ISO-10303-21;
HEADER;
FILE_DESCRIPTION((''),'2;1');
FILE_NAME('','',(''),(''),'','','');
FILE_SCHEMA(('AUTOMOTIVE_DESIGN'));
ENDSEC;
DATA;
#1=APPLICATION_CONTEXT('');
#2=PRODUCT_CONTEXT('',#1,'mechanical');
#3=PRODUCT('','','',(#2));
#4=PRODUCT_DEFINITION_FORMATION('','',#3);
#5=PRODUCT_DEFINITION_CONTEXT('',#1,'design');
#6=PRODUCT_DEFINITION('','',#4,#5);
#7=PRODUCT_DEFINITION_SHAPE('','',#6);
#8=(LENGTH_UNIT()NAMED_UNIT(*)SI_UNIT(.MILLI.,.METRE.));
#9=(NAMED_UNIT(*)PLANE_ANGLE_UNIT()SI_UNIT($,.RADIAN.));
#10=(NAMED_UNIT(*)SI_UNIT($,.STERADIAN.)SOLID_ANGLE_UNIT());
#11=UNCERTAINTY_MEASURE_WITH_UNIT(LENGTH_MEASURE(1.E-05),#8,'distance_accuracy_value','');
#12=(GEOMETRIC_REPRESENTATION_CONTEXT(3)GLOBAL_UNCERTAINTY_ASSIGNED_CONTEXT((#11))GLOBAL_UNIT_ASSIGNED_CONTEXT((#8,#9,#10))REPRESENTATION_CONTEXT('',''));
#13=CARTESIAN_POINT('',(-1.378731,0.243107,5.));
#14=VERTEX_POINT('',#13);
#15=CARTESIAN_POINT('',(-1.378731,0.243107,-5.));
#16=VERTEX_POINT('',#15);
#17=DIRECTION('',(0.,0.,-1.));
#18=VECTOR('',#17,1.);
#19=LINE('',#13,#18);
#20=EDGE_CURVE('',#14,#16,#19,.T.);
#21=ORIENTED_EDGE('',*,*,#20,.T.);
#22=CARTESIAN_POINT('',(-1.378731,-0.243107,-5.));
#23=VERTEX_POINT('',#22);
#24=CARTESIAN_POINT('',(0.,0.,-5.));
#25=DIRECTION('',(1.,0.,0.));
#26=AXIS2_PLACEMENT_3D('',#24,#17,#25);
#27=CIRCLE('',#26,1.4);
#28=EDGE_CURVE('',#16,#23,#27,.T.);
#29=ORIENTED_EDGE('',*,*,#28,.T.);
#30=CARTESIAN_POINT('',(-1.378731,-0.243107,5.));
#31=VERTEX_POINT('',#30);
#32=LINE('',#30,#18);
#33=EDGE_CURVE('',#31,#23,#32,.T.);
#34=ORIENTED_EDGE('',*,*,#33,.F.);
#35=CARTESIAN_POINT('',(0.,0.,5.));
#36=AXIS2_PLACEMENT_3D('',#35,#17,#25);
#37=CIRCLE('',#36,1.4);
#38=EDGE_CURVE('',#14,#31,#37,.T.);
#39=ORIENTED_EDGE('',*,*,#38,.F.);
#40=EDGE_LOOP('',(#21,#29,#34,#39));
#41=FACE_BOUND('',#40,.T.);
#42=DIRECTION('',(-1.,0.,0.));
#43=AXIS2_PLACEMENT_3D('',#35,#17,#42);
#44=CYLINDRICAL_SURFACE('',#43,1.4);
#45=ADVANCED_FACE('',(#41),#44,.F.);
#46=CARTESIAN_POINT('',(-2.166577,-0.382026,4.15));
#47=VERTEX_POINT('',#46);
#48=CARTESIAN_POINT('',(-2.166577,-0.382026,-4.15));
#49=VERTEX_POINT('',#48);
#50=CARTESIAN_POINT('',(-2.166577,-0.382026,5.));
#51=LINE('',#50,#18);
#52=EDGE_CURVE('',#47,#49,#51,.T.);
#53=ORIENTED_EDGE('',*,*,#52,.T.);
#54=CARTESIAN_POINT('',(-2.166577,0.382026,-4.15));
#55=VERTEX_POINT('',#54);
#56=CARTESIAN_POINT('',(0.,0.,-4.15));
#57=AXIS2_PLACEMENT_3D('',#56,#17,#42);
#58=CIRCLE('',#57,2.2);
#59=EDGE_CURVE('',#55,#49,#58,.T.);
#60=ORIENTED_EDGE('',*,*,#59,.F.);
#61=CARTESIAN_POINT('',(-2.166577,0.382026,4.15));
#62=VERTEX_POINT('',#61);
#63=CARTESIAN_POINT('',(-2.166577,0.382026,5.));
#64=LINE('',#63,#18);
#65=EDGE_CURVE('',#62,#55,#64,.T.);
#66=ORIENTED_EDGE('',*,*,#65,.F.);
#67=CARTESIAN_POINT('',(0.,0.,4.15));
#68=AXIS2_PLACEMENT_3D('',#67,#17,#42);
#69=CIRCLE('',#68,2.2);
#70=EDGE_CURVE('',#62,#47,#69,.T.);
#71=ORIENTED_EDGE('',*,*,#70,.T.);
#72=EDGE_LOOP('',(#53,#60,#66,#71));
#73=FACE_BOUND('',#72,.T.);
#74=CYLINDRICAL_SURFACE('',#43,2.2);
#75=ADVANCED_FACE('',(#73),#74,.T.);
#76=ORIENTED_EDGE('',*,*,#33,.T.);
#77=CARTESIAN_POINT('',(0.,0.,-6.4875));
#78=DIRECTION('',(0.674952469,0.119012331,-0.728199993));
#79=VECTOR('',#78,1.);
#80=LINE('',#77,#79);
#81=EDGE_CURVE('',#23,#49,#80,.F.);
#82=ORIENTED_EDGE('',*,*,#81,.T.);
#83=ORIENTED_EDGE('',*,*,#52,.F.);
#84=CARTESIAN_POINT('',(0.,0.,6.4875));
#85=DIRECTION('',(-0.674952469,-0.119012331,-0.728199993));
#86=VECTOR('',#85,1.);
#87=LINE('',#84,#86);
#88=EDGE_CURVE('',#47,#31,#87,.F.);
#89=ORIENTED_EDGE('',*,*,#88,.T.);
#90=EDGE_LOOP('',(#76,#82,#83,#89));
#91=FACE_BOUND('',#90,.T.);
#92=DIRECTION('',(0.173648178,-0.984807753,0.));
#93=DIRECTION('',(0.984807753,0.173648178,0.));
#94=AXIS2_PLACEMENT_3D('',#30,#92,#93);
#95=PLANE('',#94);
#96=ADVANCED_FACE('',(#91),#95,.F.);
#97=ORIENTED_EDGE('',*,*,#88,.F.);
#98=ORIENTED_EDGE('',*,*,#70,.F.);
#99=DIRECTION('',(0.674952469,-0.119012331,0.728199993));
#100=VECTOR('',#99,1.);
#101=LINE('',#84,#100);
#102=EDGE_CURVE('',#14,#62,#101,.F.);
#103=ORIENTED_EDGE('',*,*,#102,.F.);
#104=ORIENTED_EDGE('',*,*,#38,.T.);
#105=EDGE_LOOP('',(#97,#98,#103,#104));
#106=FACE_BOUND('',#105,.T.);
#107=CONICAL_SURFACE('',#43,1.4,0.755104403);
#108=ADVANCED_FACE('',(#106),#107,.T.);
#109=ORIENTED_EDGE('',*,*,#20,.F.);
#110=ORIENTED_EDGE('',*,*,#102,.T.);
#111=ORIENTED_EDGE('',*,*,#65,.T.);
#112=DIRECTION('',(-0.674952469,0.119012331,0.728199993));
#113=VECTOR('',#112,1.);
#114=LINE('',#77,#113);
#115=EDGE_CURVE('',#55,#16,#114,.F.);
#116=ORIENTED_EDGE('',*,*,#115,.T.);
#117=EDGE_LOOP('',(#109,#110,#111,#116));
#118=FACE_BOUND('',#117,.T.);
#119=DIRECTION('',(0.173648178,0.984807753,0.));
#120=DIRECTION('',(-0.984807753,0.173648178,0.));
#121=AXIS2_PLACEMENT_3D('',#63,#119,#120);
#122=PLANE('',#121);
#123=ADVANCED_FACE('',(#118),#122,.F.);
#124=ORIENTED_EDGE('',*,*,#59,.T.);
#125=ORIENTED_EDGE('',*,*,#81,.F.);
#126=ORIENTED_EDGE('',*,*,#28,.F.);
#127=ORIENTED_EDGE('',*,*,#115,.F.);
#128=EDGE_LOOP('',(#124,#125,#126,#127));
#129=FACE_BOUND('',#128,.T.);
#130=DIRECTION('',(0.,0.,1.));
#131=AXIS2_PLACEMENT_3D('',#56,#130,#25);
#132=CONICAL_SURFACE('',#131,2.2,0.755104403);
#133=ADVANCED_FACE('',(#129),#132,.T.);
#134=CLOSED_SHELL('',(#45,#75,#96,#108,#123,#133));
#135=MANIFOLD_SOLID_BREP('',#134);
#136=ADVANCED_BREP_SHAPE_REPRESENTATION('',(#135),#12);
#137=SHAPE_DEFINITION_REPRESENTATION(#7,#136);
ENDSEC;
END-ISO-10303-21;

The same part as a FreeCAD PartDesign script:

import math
import FreeCAD as App
import Part
import Sketcher
from FreeCAD import Vector
Q = App.Units.Quantity

doc = App.newDocument("Part")
body = doc.addObject("PartDesign::Body", "Body")

# Sketch on XY plane
sketch1 = body.newObject("Sketcher::SketchObject", "Sketch")
sketch1.AttachmentSupport = (doc.getObject("XY_Plane"), [""])
sketch1.MapMode = "FlatFace"
sketch1.addGeometry(Part.LineSegment(Vector(-2.17, 0.38, 0), Vector(-1.38, 0.24, 0)), False)
sketch1.addGeometry(Part.ArcOfCircle(Part.Circle(Vector(0, 0, 0), Vector(0, 0, 1), 1.4), math.radians(-170), math.radians(170)), False)
sketch1.addGeometry(Part.LineSegment(Vector(-1.38, -0.24, 0), Vector(-2.17, -0.38, 0)), False)
sketch1.addGeometry(Part.ArcOfCircle(Part.Circle(Vector(0, 0, 0), Vector(0, 0, 1), 2.2), math.radians(-170), math.radians(170)), False)
sketch1.addConstraint(Sketcher.Constraint("Coincident", 0, 2, 1, 2))
sketch1.addConstraint(Sketcher.Constraint("Coincident", 1, 1, 2, 1))
sketch1.addConstraint(Sketcher.Constraint("Coincident", 2, 2, 3, 1))
sketch1.addConstraint(Sketcher.Constraint("Coincident", 3, 2, 0, 1))
sketch1.addConstraint(Sketcher.Constraint("Coincident", 1, 3, -1, 1))
sketch1.addConstraint(Sketcher.Constraint("Coincident", 3, 3, -1, 1))
sketch1.addConstraint(Sketcher.Constraint("Vertical", 0, 2, 1, 1))
sketch1.addConstraint(Sketcher.Constraint("Vertical", 2, 2, 3, 2))
sketch1.addConstraint(Sketcher.Constraint("Radius", 1, Q("1.4 mm")))
sketch1.addConstraint(Sketcher.Constraint("Radius", 3, Q("2.2 mm")))
sketch1.addConstraint(Sketcher.Constraint("Angle", 0, Q("-10 deg")))
sketch1.addConstraint(Sketcher.Constraint("DistanceX", 0, 2, -1, 1, Q("1.378731 mm")))
pad1 = body.newObject("PartDesign::Pad", "Pad")
pad1.Profile = sketch1
pad1.Length = 10
pad1.Midplane = True

# Sketch on YZ plane
sketch2 = body.newObject("Sketcher::SketchObject", "Sketch001")
sketch2.AttachmentSupport = (doc.getObject("YZ_Plane"), [""])
sketch2.MapMode = "FlatFace"
sketch2.addGeometry(Part.LineSegment(Vector(1.4, -5, 0), Vector(2.2, -5, 0)), False)
sketch2.addGeometry(Part.LineSegment(Vector(2.2, -5, 0), Vector(2.2, -4.2, 0)), False)
sketch2.addGeometry(Part.LineSegment(Vector(2.2, -4.2, 0), Vector(1.4, -5, 0)), False)
sketch2.addGeometry(Part.LineSegment(Vector(2.2, 4.2, 0), Vector(2.2, 5, 0)), False)
sketch2.addGeometry(Part.LineSegment(Vector(2.2, 5, 0), Vector(1.4, 5, 0)), False)
sketch2.addGeometry(Part.LineSegment(Vector(1.4, 5, 0), Vector(2.2, 4.2, 0)), False)
sketch2.addConstraint(Sketcher.Constraint("Coincident", 0, 2, 1, 1))
sketch2.addConstraint(Sketcher.Constraint("Coincident", 1, 2, 2, 1))
sketch2.addConstraint(Sketcher.Constraint("Coincident", 2, 2, 0, 1))
sketch2.addConstraint(Sketcher.Constraint("Coincident", 3, 2, 4, 1))
sketch2.addConstraint(Sketcher.Constraint("Coincident", 4, 2, 5, 1))
sketch2.addConstraint(Sketcher.Constraint("Coincident", 5, 2, 3, 1))
sketch2.addConstraint(Sketcher.Constraint("Horizontal", 0))
sketch2.addConstraint(Sketcher.Constraint("Vertical", 1))
sketch2.addConstraint(Sketcher.Constraint("Vertical", 3))
sketch2.addConstraint(Sketcher.Constraint("Horizontal", 4))
sketch2.addConstraint(Sketcher.Constraint("Symmetric", 0, 2, 3, 2, -1))
sketch2.addConstraint(Sketcher.Constraint("Vertical", 2, 2, 4, 2))
sketch2.addConstraint(Sketcher.Constraint("Equal", 1, 3))
sketch2.addConstraint(Sketcher.Constraint("DistanceX", 0, 1, 0, 2, Q("0.8 mm")))
sketch2.addConstraint(Sketcher.Constraint("DistanceY", 0, 2, -1, 1, Q("5 mm")))
sketch2.addConstraint(Sketcher.Constraint("DistanceY", 1, 1, 1, 2, Q("0.85 mm")))
sketch2.addConstraint(Sketcher.Constraint("DistanceX", -1, 1, 0, 2, Q("2.2 mm")))
groove = body.newObject("PartDesign::Groove", "Groove")
groove.Profile = sketch2
groove.ReferenceAxis = (sketch2, ["V_Axis"])
groove.Angle = 360

doc.recompute()
